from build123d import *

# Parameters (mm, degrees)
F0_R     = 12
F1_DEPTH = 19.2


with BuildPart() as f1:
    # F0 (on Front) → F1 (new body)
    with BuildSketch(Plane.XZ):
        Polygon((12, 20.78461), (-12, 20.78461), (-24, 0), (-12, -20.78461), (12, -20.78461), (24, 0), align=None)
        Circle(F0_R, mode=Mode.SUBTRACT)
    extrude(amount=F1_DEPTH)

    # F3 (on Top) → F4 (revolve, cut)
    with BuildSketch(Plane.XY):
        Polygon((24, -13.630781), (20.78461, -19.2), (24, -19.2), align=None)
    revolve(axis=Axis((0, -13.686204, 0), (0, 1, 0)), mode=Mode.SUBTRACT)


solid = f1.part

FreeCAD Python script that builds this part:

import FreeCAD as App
import Part
import Sketcher
Q = App.Units.Quantity

doc = App.newDocument("Part")
body = doc.addObject("PartDesign::Body", "Body")

# Sketch on XZ plane
sketch1 = doc.addObject("Sketcher::SketchObject", "Sketch")
body.addObject(sketch1)
sketch1.AttachmentSupport = (doc.XZ_Plane, [""])
sketch1.MapMode = "FlatFace"
sketch1.addGeometry(Part.LineSegment(App.Vector(12, 20.78461, 0), App.Vector(-12, 20.78461, 0)), False)
sketch1.addGeometry(Part.LineSegment(App.Vector(-12, 20.78461, 0), App.Vector(-24, 0, 0)), False)
sketch1.addGeometry(Part.LineSegment(App.Vector(-24, 0, 0), App.Vector(-12, -20.78461, 0)), False)
sketch1.addGeometry(Part.LineSegment(App.Vector(-12, -20.78461, 0), App.Vector(12, -20.78461, 0)), False)
sketch1.addGeometry(Part.LineSegment(App.Vector(12, -20.78461, 0), App.Vector(24, 0, 0)), False)
sketch1.addGeometry(Part.LineSegment(App.Vector(24, 0, 0), App.Vector(12, 20.78461, 0)), False)
sketch1.addGeometry(Part.Circle(App.Vector(0, 0, 0), App.Vector(0, 0, 1), 12), False)
sketch1.addConstraint(Sketcher.Constraint("Coincident", 0, 2, 1, 1))
sketch1.addConstraint(Sketcher.Constraint("Coincident", 1, 2, 2, 1))
sketch1.addConstraint(Sketcher.Constraint("Coincident", 2, 2, 3, 1))
sketch1.addConstraint(Sketcher.Constraint("Coincident", 3, 2, 4, 1))
sketch1.addConstraint(Sketcher.Constraint("Coincident", 4, 2, 5, 1))
sketch1.addConstraint(Sketcher.Constraint("Coincident", 5, 2, 0, 1))
sketch1.addConstraint(Sketcher.Constraint("Horizontal", 0))
sketch1.addConstraint(Sketcher.Constraint("Horizontal", 3))
sketch1.addConstraint(Sketcher.Constraint("Coincident", 6, 3, -1, 1))
sketch1.addConstraint(Sketcher.Constraint("Symmetric", 0, 2, 3, 2, -1, 1))
sketch1.addConstraint(Sketcher.Constraint("Symmetric", 1, 2, 4, 2, -1, 1))
sketch1.addConstraint(Sketcher.Constraint("PointOnObject", 1, 2, -1))
sketch1.addConstraint(Sketcher.Constraint("Parallel", 2, 5))
sketch1.addConstraint(Sketcher.Constraint("Vertical", 0, 2, 2, 2))
sketch1.addConstraint(Sketcher.Constraint("Diameter", 6, Q("24 mm")))
sketch1.addConstraint(Sketcher.Constraint("DistanceX", 0, 2, 0, 1, Q("24 mm")))
sketch1.addConstraint(Sketcher.Constraint("Angle", 1, Q("-120 deg")))
sketch1.addConstraint(Sketcher.Constraint("Distance", 1, Q("24 mm")))
pad1 = doc.addObject("PartDesign::Pad", "Pad")
body.addObject(pad1)
pad1.Profile = sketch1
pad1.Length = 19.2

# Sketch on XY plane
sketch2 = doc.addObject("Sketcher::SketchObject", "Sketch001")
body.addObject(sketch2)
sketch2.AttachmentSupport = (doc.XY_Plane, [""])
sketch2.MapMode = "FlatFace"
sketch2.addGeometry(Part.LineSegment(App.Vector(24, -13.630781, 0), App.Vector(20.78461, -19.2, 0)), False)
sketch2.addGeometry(Part.LineSegment(App.Vector(20.78461, -19.2, 0), App.Vector(24, -19.2, 0)), False)
sketch2.addGeometry(Part.LineSegment(App.Vector(24, -19.2, 0), App.Vector(24, -13.630781, 0)), False)
sketch2.addConstraint(Sketcher.Constraint("Coincident", 0, 2, 1, 1))
sketch2.addConstraint(Sketcher.Constraint("Coincident", 1, 2, 2, 1))
sketch2.addConstraint(Sketcher.Constraint("Coincident", 2, 2, 0, 1))
sketch2.addConstraint(Sketcher.Constraint("Horizontal", 1))
sketch2.addConstraint(Sketcher.Constraint("Vertical", 2))
sketch2.addConstraint(Sketcher.Constraint("Angle", 0, Q("-119.999999 deg")))
sketch2.addConstraint(Sketcher.Constraint("DistanceX", -1, 1, 1, 2, Q("24 mm")))
sketch2.addConstraint(Sketcher.Constraint("DistanceY", 0, 2, -1, 1, Q("19.2 mm")))
sketch2.addConstraint(Sketcher.Constraint("DistanceX", 1, 1, 1, 2, Q("3.21539 mm")))
groove = doc.addObject("PartDesign::Groove", "Groove")
body.addObject(groove)
groove.Profile = sketch2
groove.ReferenceAxis = (sketch2, ["V_Axis"])
groove.Angle = 360

doc.recompute()
